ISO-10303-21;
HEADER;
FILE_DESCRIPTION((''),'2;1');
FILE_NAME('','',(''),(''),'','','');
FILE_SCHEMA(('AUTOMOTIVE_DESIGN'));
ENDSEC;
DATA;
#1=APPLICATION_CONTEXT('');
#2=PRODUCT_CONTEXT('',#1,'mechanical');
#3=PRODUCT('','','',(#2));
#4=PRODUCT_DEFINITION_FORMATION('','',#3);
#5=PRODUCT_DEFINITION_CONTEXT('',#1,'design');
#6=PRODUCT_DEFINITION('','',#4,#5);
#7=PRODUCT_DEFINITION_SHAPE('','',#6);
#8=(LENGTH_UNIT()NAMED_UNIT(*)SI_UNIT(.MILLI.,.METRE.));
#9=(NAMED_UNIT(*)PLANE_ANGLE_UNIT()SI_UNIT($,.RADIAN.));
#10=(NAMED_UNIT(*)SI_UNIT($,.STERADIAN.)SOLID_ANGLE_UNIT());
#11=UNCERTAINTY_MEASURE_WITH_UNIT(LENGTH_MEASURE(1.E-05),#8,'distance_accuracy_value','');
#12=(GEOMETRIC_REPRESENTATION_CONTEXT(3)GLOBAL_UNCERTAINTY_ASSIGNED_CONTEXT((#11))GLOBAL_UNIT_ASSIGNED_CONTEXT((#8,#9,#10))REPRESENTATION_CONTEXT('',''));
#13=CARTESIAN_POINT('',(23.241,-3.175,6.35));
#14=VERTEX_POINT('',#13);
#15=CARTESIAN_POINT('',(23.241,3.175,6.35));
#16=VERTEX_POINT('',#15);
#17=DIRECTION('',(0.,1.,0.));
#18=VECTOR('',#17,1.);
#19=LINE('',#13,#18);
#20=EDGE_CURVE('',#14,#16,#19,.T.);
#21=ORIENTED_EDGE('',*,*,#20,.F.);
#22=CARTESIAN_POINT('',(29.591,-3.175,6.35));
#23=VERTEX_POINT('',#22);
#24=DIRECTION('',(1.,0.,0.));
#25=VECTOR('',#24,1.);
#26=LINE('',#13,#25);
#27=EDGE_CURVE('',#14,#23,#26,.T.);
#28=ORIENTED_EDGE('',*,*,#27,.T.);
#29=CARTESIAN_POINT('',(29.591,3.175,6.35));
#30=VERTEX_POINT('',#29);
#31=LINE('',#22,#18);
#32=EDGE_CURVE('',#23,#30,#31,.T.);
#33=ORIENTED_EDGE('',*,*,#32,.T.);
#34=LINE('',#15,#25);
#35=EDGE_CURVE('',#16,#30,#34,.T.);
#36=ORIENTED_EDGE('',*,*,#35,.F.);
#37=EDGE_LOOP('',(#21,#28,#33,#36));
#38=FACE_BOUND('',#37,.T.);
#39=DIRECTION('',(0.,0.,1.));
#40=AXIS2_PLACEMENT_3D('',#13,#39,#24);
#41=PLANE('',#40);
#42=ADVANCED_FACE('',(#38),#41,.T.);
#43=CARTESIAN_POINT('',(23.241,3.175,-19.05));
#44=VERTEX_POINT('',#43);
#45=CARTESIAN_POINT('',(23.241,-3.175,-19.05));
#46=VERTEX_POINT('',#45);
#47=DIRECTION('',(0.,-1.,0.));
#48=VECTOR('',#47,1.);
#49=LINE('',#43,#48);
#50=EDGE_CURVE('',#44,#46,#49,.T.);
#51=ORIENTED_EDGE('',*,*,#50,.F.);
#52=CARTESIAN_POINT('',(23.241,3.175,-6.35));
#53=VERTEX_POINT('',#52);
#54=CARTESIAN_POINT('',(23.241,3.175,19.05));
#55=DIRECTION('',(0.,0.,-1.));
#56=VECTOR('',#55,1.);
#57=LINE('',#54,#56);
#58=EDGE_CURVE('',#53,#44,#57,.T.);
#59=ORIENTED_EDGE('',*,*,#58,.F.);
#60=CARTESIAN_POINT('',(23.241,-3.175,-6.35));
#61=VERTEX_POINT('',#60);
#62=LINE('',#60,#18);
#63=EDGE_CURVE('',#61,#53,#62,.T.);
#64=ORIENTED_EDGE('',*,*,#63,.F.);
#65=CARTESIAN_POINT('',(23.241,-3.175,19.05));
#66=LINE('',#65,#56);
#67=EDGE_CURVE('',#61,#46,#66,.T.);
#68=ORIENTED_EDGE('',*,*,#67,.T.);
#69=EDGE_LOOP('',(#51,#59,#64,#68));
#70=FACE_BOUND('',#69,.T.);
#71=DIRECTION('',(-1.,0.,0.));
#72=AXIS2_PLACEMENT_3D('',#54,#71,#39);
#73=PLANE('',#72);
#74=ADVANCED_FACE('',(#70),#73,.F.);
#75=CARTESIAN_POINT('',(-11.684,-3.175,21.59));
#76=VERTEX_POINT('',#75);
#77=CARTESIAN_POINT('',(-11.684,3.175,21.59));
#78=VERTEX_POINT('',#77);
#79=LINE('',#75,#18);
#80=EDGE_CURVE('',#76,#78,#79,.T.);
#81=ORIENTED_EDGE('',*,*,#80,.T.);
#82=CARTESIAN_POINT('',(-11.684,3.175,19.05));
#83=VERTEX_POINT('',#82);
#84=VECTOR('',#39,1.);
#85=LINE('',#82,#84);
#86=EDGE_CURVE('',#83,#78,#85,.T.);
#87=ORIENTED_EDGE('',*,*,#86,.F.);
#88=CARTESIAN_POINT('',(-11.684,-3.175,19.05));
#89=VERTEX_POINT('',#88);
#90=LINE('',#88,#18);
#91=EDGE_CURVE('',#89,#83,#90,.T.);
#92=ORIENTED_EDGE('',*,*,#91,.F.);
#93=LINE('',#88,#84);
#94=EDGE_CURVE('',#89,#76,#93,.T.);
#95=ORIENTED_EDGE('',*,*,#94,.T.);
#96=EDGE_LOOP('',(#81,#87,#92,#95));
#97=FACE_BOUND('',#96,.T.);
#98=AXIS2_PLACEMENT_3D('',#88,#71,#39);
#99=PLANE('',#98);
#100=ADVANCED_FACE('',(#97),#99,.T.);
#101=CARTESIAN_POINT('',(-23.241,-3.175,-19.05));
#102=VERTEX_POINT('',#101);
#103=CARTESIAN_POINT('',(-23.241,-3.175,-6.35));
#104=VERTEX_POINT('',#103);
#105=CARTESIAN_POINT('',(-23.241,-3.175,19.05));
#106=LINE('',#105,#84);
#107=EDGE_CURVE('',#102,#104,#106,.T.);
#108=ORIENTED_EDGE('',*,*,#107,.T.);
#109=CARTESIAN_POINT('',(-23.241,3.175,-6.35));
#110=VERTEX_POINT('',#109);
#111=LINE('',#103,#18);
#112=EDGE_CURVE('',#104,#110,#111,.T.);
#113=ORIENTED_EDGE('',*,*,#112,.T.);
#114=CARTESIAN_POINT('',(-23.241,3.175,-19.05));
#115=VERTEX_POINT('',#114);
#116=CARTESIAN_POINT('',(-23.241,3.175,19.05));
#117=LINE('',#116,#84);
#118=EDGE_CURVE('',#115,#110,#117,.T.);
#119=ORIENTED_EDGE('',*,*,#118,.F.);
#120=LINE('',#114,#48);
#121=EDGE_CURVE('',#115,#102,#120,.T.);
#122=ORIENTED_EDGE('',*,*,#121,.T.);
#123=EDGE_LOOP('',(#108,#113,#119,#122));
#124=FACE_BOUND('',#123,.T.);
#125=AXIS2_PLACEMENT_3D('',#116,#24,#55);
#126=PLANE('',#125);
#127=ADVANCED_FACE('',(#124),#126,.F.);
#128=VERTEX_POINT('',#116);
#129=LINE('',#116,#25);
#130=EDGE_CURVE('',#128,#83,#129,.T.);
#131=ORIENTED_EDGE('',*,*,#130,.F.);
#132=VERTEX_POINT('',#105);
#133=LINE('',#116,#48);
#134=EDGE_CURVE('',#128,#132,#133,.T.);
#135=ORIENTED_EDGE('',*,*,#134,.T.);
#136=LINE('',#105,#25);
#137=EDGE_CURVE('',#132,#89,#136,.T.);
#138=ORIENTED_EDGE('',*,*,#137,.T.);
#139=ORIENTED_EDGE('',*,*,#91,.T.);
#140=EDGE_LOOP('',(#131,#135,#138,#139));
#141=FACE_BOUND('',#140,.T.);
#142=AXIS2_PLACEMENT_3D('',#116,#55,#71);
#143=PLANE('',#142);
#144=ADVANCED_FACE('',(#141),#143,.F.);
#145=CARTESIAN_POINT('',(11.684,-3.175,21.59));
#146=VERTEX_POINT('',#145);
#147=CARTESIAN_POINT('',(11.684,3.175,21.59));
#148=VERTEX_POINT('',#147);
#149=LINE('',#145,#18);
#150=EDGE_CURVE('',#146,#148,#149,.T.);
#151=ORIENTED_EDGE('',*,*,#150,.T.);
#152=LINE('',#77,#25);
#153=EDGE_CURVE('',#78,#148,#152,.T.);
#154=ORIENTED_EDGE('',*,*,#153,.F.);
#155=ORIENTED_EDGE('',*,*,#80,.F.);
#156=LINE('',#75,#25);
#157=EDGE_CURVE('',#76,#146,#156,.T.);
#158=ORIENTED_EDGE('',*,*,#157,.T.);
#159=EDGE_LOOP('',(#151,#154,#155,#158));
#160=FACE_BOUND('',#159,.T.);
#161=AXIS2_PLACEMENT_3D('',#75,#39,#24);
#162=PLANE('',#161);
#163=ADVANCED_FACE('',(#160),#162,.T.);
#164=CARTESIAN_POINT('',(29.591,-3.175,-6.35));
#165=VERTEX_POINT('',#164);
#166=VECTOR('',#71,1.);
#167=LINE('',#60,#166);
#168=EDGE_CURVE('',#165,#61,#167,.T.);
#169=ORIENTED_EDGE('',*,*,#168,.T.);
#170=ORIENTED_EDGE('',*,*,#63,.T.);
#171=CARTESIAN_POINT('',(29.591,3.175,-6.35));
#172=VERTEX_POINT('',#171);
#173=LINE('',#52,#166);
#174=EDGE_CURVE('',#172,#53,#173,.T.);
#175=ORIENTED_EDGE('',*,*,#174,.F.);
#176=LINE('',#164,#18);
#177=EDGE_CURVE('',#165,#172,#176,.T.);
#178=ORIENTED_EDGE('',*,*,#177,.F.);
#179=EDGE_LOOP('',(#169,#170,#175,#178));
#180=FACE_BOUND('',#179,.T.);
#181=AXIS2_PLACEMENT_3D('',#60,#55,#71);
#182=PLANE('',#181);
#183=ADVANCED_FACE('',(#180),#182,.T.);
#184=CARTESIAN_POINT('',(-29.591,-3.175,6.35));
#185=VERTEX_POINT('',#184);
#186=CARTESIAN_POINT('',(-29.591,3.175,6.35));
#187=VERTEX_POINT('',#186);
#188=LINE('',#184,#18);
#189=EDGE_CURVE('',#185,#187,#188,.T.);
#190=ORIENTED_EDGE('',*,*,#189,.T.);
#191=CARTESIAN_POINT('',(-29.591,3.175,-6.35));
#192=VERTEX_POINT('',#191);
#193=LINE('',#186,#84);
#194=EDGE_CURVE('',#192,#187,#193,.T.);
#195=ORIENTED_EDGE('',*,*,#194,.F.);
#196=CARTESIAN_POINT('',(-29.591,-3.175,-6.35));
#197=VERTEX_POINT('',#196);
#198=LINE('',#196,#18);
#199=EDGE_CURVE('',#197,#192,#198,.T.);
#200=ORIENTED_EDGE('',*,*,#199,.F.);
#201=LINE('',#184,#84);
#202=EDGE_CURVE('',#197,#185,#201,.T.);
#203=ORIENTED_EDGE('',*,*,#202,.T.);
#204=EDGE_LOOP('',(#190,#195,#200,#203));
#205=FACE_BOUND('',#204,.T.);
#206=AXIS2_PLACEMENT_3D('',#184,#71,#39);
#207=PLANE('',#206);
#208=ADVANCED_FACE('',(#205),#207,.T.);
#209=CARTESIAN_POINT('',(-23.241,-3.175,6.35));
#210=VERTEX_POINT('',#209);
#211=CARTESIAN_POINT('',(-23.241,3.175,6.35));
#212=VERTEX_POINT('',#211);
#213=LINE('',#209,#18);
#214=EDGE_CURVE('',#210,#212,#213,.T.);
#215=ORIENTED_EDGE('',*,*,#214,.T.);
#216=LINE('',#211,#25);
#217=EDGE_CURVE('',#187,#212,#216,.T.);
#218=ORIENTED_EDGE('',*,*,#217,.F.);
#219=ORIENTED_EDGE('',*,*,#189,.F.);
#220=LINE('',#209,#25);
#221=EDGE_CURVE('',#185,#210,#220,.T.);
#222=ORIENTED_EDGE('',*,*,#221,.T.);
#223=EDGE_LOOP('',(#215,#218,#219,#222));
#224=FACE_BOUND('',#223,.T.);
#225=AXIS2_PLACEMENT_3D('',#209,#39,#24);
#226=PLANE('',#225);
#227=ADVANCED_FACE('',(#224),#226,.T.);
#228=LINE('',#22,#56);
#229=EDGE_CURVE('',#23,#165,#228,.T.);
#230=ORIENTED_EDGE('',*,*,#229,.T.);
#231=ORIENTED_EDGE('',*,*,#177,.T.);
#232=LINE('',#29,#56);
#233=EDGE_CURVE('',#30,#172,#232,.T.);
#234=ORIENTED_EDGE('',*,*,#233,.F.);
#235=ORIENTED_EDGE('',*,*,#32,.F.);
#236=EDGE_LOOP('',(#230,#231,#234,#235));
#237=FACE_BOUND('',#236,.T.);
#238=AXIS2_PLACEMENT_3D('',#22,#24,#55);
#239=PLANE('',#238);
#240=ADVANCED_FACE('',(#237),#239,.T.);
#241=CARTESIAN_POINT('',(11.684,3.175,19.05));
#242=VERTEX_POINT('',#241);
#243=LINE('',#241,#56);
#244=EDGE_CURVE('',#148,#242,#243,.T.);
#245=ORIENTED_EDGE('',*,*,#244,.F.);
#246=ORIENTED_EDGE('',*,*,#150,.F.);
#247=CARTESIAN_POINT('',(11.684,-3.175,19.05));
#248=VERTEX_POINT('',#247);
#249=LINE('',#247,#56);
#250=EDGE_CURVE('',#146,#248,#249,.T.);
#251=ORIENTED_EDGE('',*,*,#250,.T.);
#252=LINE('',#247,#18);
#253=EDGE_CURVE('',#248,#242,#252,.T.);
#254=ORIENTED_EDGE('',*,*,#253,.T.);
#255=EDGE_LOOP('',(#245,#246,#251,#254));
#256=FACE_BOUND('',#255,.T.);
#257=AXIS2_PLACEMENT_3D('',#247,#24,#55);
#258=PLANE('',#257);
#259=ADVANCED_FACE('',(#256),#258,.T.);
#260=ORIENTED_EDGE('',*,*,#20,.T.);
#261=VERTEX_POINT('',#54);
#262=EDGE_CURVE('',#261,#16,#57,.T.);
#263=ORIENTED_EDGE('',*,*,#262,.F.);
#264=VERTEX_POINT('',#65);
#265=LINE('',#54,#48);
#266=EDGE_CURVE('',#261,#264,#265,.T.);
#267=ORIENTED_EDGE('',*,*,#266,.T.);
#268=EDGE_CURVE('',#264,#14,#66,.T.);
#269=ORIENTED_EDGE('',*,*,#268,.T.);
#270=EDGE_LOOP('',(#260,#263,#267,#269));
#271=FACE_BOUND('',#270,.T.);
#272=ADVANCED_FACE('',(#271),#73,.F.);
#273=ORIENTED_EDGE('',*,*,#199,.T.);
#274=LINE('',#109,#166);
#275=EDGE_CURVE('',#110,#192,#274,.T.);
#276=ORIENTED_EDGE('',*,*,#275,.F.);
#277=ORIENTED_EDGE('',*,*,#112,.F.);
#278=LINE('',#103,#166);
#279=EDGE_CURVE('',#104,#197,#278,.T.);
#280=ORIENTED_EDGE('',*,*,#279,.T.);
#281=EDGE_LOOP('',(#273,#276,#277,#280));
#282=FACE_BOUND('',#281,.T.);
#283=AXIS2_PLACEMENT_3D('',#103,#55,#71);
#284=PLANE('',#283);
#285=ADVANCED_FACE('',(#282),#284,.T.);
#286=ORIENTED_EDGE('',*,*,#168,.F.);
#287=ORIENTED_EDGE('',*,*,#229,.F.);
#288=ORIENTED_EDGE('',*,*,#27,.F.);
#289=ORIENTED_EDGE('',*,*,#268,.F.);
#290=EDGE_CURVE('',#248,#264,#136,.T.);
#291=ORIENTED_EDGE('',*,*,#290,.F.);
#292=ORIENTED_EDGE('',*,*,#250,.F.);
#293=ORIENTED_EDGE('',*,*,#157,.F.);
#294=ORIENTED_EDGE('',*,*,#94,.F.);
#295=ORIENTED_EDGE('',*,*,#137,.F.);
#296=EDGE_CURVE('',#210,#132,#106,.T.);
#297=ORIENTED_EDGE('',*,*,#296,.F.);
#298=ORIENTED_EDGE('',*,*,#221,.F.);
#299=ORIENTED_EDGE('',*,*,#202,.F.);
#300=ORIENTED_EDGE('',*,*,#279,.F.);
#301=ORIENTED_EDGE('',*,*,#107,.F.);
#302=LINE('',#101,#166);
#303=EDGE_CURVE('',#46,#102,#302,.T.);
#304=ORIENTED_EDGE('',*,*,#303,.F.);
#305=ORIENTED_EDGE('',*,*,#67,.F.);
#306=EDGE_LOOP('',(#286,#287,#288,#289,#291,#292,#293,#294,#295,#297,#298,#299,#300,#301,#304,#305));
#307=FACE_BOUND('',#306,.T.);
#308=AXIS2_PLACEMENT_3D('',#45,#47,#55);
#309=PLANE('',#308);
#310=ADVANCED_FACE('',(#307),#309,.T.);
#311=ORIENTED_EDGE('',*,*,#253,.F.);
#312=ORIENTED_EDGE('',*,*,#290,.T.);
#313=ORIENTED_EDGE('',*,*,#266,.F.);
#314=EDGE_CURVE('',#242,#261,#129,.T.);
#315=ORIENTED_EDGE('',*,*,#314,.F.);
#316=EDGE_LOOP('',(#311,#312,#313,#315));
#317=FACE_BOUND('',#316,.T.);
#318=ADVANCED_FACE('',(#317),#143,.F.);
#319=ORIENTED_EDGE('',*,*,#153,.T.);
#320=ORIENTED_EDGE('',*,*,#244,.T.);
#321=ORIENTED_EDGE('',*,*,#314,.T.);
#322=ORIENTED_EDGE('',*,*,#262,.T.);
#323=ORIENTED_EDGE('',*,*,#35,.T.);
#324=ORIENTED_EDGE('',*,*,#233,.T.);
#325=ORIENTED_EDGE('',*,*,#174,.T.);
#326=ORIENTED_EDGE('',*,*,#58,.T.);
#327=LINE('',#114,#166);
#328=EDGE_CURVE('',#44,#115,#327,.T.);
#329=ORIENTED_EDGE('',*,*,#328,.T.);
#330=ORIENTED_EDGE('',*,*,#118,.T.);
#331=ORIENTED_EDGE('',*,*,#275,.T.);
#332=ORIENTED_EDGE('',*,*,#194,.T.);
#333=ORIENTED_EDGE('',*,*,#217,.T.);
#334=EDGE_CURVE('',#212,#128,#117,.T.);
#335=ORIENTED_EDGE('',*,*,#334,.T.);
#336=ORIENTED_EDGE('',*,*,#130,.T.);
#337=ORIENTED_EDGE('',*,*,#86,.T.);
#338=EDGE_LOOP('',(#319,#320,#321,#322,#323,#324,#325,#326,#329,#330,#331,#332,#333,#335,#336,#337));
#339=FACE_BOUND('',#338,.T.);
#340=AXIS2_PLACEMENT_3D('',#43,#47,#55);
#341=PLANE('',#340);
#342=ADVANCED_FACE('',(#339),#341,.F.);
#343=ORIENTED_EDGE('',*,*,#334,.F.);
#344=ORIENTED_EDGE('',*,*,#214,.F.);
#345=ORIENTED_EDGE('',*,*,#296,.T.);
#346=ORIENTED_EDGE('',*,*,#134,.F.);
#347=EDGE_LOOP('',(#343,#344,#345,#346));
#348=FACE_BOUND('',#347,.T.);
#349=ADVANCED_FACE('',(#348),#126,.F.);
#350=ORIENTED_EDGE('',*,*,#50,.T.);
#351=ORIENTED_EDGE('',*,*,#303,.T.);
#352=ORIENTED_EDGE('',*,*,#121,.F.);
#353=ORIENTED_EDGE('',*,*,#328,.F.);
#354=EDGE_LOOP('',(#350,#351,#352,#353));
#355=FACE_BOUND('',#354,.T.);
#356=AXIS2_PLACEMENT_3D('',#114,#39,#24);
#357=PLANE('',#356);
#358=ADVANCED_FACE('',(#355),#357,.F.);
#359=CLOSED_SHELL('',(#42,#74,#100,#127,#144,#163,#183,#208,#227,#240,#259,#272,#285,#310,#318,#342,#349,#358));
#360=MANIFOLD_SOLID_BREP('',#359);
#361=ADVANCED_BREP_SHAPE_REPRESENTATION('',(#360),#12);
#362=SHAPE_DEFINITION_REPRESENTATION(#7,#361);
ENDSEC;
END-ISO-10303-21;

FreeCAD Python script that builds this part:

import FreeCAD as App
import Part
import Sketcher

V = App.Vector
Q = App.Units.Quantity

doc = App.newDocument("Part")
body = doc.addObject("PartDesign::Body", "Body")

# Sketch on XZ plane
sketch1 = body.newObject("Sketcher::SketchObject", "Sketch")
sketch1.AttachmentSupport = (doc.getObject("XZ_Plane"), [""])
sketch1.MapMode = "FlatFace"
sketch1.addGeometry([
    Part.LineSegment(V(-23.241, -19.05, 0), V(-23.241, 19.05, 0)),
    Part.LineSegment(V(-23.241, 19.05, 0), V(23.241, 19.05, 0)),
    Part.LineSegment(V(23.241, 19.05, 0), V(23.241, -19.05, 0)),
    Part.LineSegment(V(23.241, -19.05, 0), V(-23.241, -19.05, 0)),
], False)
sketch1.addConstraint([
    Sketcher.Constraint("Coincident", 0, 2, 1, 1),
    Sketcher.Constraint("Coincident", 1, 2, 2, 1),
    Sketcher.Constraint("Coincident", 2, 2, 3, 1),
    Sketcher.Constraint("Coincident", 3, 2, 0, 1),
    Sketcher.Constraint("Vertical", 0),
    Sketcher.Constraint("Horizontal", 1),
    Sketcher.Constraint("Vertical", 2),
    Sketcher.Constraint("Horizontal", 3),
    Sketcher.Constraint("Symmetric", 0, 2, 2, 2, -1, 1),
    Sketcher.Constraint("DistanceY", 0, 1, 0, 2, Q("1.5 in")),
    Sketcher.Constraint("DistanceX", 1, 1, 1, 2, Q("1.83 in")),
])
pad1 = body.newObject("PartDesign::Pad", "Pad")
pad1.Profile = sketch1
pad1.Length = Q("0.25 in")
pad1.Midplane = True

# Sketch on XZ plane
sketch2 = body.newObject("Sketcher::SketchObject", "Sketch001")
sketch2.AttachmentSupport = (doc.getObject("XZ_Plane"), [""])
sketch2.MapMode = "FlatFace"
sketch2.AttachmentOffset = App.Placement(V(0, 0, -0.125 * 25.4), App.Rotation())
sketch2.addGeometry([
    Part.LineSegment(V(-11.684, 19.05, 0), V(-11.684, 21.59, 0)),  # 0
    Part.LineSegment(V(-11.684, 21.59, 0), V(11.684, 21.59, 0)),  # 1
    Part.LineSegment(V(11.684, 21.59, 0), V(11.684, 19.05, 0)),  # 2
    Part.LineSegment(V(11.684, 19.05, 0), V(-11.684, 19.05, 0)),  # 3
    Part.LineSegment(V(-29.591, -6.35, 0), V(-29.591, 6.35, 0)),  # 4
    Part.LineSegment(V(-29.591, 6.35, 0), V(-23.241, 6.35, 0)),  # 5
    Part.LineSegment(V(-23.241, 6.35, 0), V(-23.241, -6.35, 0)),  # 6
    Part.LineSegment(V(-23.241, -6.35, 0), V(-29.591, -6.35, 0)),  # 7
    Part.LineSegment(V(23.241, -6.35, 0), V(23.241, 6.35, 0)),  # 8
    Part.LineSegment(V(23.241, 6.35, 0), V(29.591, 6.35, 0)),  # 9
    Part.LineSegment(V(29.591, 6.35, 0), V(29.591, -6.35, 0)),  # 10
    Part.LineSegment(V(29.591, -6.35, 0), V(23.241, -6.35, 0)),  # 11
], False)
sketch2.addConstraint([
    Sketcher.Constraint("Coincident", 0, 2, 1, 1),
    Sketcher.Constraint("Coincident", 1, 2, 2, 1),
    Sketcher.Constraint("Coincident", 2, 2, 3, 1),
    Sketcher.Constraint("Coincident", 3, 2, 0, 1),
    Sketcher.Constraint("Coincident", 4, 2, 5, 1),
    Sketcher.Constraint("Coincident", 5, 2, 6, 1),
    Sketcher.Constraint("Coincident", 6, 2, 7, 1),
    Sketcher.Constraint("Coincident", 7, 2, 4, 1),
    Sketcher.Constraint("Coincident", 8, 2, 9, 1),
    Sketcher.Constraint("Coincident", 9, 2, 10, 1),
    Sketcher.Constraint("Coincident", 10, 2, 11, 1),
    Sketcher.Constraint("Coincident", 11, 2, 8, 1),
    Sketcher.Constraint("Vertical", 0),
    Sketcher.Constraint("Horizontal", 1),
    Sketcher.Constraint("Vertical", 2),
    Sketcher.Constraint("Horizontal", 3),
    Sketcher.Constraint("Vertical", 4),
    Sketcher.Constraint("Horizontal", 5),
    Sketcher.Constraint("Vertical", 6),
    Sketcher.Constraint("Horizontal", 7),
    Sketcher.Constraint("Vertical", 8),
    Sketcher.Constraint("Horizontal", 9),
    Sketcher.Constraint("Vertical", 10),
    Sketcher.Constraint("Horizontal", 11),
    Sketcher.Constraint("Symmetric", 6, 2, 8, 2, -1, 1),
    Sketcher.Constraint("Symmetric", 4, 2, 10, 2, -1, 1),
    Sketcher.Constraint("Horizontal", 5, 2, 8, 2),
    Sketcher.Constraint("DistanceY", 0, 1, 0, 2, Q("0.1 in")),
    Sketcher.Constraint("DistanceY", 4, 1, 4, 2, Q("0.5 in")),
    Sketcher.Constraint("DistanceY", 6, 2, 3, 2, Q("1 in")),
    Sketcher.Constraint("DistanceX", 1, 1, 1, 2, Q("0.92 in")),
    Sketcher.Constraint("DistanceX", 5, 1, 5, 2, Q("0.25 in")),
    Sketcher.Constraint("DistanceX", 0, 2, -1, 1, Q("0.46 in")),
    Sketcher.Constraint("DistanceX", 5, 2, 8, 2, Q("1.83 in")),
])
pad2 = body.newObject("PartDesign::Pad", "Pad001")
pad2.Profile = sketch2
pad2.Length = Q("0.25 in")

doc.recompute()
